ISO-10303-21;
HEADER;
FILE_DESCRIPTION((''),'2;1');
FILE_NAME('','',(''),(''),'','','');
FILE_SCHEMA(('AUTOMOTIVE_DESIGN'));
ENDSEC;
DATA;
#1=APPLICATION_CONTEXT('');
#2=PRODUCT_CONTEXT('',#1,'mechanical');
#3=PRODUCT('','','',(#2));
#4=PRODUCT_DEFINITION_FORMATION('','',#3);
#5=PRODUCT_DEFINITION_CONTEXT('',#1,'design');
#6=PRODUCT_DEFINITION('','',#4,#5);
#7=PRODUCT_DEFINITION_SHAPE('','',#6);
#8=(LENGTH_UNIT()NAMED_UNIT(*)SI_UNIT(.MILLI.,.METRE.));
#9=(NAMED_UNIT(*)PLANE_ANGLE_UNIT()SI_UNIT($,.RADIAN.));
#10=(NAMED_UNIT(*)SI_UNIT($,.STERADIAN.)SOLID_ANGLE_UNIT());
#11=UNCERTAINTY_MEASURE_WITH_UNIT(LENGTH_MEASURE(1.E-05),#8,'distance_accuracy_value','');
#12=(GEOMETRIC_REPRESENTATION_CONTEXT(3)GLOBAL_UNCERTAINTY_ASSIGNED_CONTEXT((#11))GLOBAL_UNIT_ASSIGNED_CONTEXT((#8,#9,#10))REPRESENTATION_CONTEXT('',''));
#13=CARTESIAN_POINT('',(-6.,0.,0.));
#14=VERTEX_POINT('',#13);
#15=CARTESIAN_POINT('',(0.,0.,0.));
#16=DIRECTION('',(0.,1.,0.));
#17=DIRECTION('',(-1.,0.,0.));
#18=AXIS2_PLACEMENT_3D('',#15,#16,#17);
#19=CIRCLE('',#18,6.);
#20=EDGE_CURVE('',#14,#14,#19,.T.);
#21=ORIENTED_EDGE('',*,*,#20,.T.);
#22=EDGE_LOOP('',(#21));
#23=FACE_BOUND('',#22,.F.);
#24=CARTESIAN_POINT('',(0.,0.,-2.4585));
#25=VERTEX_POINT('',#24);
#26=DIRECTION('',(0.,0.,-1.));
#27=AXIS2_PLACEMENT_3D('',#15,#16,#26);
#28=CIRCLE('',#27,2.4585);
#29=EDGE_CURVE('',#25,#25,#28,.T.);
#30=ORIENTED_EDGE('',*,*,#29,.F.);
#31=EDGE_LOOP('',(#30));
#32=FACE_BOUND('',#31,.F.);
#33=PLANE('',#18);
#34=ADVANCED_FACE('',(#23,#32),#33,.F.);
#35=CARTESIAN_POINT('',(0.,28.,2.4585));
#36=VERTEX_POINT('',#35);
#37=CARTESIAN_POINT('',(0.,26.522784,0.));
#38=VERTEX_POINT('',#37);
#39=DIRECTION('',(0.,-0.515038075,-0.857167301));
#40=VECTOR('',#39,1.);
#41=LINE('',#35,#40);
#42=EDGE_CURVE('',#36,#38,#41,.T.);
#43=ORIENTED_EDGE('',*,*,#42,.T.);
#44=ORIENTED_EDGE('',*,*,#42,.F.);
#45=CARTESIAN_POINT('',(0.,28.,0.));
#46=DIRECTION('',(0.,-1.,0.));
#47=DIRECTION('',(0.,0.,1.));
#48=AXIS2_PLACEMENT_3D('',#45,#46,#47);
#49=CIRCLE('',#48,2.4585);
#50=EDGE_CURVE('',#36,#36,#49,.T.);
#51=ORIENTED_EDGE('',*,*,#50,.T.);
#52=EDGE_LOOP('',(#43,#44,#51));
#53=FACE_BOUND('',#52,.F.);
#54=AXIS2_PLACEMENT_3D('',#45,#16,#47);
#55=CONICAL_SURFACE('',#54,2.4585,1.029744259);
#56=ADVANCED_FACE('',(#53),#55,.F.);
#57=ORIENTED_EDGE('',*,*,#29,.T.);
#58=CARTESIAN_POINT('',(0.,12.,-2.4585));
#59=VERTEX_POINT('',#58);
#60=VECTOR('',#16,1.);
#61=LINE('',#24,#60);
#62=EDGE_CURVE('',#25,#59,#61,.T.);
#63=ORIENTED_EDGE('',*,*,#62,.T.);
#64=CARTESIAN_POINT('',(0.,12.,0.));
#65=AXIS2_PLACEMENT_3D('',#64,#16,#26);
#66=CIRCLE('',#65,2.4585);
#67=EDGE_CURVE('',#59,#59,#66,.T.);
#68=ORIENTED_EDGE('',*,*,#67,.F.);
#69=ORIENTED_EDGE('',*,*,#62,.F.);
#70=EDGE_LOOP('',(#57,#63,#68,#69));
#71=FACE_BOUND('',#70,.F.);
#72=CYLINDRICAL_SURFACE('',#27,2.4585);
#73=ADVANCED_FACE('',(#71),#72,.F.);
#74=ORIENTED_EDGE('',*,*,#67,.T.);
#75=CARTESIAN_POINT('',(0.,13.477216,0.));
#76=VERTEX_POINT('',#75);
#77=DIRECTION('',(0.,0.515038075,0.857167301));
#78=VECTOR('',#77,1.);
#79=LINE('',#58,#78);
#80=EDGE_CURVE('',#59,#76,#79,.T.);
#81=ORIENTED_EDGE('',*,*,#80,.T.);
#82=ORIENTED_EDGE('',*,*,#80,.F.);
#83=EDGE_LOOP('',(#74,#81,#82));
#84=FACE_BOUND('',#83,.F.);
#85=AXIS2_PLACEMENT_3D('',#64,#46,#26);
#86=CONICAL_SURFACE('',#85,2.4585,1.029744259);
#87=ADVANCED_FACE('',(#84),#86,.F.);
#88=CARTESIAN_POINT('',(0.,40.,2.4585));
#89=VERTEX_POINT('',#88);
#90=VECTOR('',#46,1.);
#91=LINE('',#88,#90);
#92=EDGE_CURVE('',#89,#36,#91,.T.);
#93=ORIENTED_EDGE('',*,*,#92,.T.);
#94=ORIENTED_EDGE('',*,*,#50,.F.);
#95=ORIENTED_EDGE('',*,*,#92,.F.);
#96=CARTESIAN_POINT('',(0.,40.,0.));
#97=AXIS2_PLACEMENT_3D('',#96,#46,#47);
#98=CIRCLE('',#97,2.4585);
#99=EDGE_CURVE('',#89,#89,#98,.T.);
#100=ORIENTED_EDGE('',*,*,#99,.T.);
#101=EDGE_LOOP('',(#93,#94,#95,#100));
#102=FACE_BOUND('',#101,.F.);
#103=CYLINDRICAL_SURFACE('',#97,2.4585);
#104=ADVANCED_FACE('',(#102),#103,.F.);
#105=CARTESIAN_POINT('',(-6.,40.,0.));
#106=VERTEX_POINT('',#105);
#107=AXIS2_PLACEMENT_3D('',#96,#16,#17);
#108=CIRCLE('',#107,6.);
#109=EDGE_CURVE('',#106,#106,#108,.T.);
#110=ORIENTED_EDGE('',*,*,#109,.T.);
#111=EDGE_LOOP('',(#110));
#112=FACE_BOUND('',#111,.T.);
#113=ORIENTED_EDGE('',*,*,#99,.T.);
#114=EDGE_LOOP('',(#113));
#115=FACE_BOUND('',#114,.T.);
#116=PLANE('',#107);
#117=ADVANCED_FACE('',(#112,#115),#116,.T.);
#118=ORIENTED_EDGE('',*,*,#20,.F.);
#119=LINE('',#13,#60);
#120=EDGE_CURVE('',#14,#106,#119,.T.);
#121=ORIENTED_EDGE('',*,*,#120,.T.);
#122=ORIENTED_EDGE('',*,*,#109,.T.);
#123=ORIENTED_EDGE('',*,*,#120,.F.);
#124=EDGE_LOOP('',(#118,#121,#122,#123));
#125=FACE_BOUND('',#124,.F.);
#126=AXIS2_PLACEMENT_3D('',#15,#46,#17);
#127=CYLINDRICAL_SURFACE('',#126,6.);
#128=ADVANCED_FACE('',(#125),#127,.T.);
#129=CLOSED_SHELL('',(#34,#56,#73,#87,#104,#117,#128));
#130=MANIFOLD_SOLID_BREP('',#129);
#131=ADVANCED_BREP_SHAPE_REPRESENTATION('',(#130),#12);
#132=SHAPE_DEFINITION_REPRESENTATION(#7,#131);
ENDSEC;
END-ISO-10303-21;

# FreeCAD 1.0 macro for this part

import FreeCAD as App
import Part
import Sketcher

doc = App.newDocument("Part")
body = doc.addObject("PartDesign::Body", "Body")

# Sketch on XZ plane
sketch1 = doc.addObject("Sketcher::SketchObject", "Sketch")
body.addObject(sketch1)
sketch1.AttachmentSupport = (doc.XZ_Plane, [""])
sketch1.MapMode = "FlatFace"
sketch1.addGeometry(Part.Circle(App.Vector(0, 0, 0), App.Vector(0, 0, 1), 6), False)
sketch1.addConstraint(Sketcher.Constraint("Coincident", 0, 3, -1, 1))
sketch1.addConstraint(Sketcher.Constraint("Diameter", 0, 12.0))
pad1 = doc.addObject("PartDesign::Pad", "Pad")
body.addObject(pad1)
pad1.Profile = sketch1
pad1.Length = 40
pad1.Reversed = True

# Sketch on XZ plane
sketch2 = doc.addObject("Sketcher::SketchObject", "Sketch001")
body.addObject(sketch2)
sketch2.AttachmentSupport = (doc.XZ_Plane, [""])
sketch2.MapMode = "FlatFace"
sketch2.AttachmentOffset = App.Placement(App.Vector(0, 0, -40), App.Rotation())
sketch2.addGeometry(Part.Circle(App.Vector(0, 0, 0), App.Vector(0, 0, 1), 2.4585), False)
sketch2.addConstraint(Sketcher.Constraint("Coincident", 0, 3, -1, 1))
sketch2.addConstraint(Sketcher.Constraint("Diameter", 0, 4.917))
doc.recompute()
hole = doc.addObject("PartDesign::Hole", "Hole")
body.addObject(hole)
hole.Profile = sketch2
hole.ThreadType = "None"
hole.Diameter = 4.917
hole.DepthType = "Dimension"
hole.Depth = 12
hole.DrillPoint = "Angled"
hole.DrillPointAngle = 118
hole.Reversed = True

# Sketch on XZ plane
sketch3 = doc.addObject("Sketcher::SketchObject", "Sketch002")
body.addObject(sketch3)
sketch3.AttachmentSupport = (doc.XZ_Plane, [""])
sketch3.MapMode = "FlatFace"
sketch3.addGeometry(Part.Circle(App.Vector(0, 0, 0), App.Vector(0, 0, 1), 2.4585), False)
sketch3.addConstraint(Sketcher.Constraint("Coincident", 0, 3, -1, 1))
sketch3.addConstraint(Sketcher.Constraint("Diameter", 0, 4.917))
doc.recompute()
hole2 = doc.addObject("PartDesign::Hole", "Hole001")
body.addObject(hole2)
hole2.Profile = sketch3
hole2.ThreadType = "None"
hole2.Diameter = 4.917
hole2.DepthType = "Dimension"
hole2.Depth = 12
hole2.DrillPoint = "Angled"
hole2.DrillPointAngle = 118

doc.recompute()
